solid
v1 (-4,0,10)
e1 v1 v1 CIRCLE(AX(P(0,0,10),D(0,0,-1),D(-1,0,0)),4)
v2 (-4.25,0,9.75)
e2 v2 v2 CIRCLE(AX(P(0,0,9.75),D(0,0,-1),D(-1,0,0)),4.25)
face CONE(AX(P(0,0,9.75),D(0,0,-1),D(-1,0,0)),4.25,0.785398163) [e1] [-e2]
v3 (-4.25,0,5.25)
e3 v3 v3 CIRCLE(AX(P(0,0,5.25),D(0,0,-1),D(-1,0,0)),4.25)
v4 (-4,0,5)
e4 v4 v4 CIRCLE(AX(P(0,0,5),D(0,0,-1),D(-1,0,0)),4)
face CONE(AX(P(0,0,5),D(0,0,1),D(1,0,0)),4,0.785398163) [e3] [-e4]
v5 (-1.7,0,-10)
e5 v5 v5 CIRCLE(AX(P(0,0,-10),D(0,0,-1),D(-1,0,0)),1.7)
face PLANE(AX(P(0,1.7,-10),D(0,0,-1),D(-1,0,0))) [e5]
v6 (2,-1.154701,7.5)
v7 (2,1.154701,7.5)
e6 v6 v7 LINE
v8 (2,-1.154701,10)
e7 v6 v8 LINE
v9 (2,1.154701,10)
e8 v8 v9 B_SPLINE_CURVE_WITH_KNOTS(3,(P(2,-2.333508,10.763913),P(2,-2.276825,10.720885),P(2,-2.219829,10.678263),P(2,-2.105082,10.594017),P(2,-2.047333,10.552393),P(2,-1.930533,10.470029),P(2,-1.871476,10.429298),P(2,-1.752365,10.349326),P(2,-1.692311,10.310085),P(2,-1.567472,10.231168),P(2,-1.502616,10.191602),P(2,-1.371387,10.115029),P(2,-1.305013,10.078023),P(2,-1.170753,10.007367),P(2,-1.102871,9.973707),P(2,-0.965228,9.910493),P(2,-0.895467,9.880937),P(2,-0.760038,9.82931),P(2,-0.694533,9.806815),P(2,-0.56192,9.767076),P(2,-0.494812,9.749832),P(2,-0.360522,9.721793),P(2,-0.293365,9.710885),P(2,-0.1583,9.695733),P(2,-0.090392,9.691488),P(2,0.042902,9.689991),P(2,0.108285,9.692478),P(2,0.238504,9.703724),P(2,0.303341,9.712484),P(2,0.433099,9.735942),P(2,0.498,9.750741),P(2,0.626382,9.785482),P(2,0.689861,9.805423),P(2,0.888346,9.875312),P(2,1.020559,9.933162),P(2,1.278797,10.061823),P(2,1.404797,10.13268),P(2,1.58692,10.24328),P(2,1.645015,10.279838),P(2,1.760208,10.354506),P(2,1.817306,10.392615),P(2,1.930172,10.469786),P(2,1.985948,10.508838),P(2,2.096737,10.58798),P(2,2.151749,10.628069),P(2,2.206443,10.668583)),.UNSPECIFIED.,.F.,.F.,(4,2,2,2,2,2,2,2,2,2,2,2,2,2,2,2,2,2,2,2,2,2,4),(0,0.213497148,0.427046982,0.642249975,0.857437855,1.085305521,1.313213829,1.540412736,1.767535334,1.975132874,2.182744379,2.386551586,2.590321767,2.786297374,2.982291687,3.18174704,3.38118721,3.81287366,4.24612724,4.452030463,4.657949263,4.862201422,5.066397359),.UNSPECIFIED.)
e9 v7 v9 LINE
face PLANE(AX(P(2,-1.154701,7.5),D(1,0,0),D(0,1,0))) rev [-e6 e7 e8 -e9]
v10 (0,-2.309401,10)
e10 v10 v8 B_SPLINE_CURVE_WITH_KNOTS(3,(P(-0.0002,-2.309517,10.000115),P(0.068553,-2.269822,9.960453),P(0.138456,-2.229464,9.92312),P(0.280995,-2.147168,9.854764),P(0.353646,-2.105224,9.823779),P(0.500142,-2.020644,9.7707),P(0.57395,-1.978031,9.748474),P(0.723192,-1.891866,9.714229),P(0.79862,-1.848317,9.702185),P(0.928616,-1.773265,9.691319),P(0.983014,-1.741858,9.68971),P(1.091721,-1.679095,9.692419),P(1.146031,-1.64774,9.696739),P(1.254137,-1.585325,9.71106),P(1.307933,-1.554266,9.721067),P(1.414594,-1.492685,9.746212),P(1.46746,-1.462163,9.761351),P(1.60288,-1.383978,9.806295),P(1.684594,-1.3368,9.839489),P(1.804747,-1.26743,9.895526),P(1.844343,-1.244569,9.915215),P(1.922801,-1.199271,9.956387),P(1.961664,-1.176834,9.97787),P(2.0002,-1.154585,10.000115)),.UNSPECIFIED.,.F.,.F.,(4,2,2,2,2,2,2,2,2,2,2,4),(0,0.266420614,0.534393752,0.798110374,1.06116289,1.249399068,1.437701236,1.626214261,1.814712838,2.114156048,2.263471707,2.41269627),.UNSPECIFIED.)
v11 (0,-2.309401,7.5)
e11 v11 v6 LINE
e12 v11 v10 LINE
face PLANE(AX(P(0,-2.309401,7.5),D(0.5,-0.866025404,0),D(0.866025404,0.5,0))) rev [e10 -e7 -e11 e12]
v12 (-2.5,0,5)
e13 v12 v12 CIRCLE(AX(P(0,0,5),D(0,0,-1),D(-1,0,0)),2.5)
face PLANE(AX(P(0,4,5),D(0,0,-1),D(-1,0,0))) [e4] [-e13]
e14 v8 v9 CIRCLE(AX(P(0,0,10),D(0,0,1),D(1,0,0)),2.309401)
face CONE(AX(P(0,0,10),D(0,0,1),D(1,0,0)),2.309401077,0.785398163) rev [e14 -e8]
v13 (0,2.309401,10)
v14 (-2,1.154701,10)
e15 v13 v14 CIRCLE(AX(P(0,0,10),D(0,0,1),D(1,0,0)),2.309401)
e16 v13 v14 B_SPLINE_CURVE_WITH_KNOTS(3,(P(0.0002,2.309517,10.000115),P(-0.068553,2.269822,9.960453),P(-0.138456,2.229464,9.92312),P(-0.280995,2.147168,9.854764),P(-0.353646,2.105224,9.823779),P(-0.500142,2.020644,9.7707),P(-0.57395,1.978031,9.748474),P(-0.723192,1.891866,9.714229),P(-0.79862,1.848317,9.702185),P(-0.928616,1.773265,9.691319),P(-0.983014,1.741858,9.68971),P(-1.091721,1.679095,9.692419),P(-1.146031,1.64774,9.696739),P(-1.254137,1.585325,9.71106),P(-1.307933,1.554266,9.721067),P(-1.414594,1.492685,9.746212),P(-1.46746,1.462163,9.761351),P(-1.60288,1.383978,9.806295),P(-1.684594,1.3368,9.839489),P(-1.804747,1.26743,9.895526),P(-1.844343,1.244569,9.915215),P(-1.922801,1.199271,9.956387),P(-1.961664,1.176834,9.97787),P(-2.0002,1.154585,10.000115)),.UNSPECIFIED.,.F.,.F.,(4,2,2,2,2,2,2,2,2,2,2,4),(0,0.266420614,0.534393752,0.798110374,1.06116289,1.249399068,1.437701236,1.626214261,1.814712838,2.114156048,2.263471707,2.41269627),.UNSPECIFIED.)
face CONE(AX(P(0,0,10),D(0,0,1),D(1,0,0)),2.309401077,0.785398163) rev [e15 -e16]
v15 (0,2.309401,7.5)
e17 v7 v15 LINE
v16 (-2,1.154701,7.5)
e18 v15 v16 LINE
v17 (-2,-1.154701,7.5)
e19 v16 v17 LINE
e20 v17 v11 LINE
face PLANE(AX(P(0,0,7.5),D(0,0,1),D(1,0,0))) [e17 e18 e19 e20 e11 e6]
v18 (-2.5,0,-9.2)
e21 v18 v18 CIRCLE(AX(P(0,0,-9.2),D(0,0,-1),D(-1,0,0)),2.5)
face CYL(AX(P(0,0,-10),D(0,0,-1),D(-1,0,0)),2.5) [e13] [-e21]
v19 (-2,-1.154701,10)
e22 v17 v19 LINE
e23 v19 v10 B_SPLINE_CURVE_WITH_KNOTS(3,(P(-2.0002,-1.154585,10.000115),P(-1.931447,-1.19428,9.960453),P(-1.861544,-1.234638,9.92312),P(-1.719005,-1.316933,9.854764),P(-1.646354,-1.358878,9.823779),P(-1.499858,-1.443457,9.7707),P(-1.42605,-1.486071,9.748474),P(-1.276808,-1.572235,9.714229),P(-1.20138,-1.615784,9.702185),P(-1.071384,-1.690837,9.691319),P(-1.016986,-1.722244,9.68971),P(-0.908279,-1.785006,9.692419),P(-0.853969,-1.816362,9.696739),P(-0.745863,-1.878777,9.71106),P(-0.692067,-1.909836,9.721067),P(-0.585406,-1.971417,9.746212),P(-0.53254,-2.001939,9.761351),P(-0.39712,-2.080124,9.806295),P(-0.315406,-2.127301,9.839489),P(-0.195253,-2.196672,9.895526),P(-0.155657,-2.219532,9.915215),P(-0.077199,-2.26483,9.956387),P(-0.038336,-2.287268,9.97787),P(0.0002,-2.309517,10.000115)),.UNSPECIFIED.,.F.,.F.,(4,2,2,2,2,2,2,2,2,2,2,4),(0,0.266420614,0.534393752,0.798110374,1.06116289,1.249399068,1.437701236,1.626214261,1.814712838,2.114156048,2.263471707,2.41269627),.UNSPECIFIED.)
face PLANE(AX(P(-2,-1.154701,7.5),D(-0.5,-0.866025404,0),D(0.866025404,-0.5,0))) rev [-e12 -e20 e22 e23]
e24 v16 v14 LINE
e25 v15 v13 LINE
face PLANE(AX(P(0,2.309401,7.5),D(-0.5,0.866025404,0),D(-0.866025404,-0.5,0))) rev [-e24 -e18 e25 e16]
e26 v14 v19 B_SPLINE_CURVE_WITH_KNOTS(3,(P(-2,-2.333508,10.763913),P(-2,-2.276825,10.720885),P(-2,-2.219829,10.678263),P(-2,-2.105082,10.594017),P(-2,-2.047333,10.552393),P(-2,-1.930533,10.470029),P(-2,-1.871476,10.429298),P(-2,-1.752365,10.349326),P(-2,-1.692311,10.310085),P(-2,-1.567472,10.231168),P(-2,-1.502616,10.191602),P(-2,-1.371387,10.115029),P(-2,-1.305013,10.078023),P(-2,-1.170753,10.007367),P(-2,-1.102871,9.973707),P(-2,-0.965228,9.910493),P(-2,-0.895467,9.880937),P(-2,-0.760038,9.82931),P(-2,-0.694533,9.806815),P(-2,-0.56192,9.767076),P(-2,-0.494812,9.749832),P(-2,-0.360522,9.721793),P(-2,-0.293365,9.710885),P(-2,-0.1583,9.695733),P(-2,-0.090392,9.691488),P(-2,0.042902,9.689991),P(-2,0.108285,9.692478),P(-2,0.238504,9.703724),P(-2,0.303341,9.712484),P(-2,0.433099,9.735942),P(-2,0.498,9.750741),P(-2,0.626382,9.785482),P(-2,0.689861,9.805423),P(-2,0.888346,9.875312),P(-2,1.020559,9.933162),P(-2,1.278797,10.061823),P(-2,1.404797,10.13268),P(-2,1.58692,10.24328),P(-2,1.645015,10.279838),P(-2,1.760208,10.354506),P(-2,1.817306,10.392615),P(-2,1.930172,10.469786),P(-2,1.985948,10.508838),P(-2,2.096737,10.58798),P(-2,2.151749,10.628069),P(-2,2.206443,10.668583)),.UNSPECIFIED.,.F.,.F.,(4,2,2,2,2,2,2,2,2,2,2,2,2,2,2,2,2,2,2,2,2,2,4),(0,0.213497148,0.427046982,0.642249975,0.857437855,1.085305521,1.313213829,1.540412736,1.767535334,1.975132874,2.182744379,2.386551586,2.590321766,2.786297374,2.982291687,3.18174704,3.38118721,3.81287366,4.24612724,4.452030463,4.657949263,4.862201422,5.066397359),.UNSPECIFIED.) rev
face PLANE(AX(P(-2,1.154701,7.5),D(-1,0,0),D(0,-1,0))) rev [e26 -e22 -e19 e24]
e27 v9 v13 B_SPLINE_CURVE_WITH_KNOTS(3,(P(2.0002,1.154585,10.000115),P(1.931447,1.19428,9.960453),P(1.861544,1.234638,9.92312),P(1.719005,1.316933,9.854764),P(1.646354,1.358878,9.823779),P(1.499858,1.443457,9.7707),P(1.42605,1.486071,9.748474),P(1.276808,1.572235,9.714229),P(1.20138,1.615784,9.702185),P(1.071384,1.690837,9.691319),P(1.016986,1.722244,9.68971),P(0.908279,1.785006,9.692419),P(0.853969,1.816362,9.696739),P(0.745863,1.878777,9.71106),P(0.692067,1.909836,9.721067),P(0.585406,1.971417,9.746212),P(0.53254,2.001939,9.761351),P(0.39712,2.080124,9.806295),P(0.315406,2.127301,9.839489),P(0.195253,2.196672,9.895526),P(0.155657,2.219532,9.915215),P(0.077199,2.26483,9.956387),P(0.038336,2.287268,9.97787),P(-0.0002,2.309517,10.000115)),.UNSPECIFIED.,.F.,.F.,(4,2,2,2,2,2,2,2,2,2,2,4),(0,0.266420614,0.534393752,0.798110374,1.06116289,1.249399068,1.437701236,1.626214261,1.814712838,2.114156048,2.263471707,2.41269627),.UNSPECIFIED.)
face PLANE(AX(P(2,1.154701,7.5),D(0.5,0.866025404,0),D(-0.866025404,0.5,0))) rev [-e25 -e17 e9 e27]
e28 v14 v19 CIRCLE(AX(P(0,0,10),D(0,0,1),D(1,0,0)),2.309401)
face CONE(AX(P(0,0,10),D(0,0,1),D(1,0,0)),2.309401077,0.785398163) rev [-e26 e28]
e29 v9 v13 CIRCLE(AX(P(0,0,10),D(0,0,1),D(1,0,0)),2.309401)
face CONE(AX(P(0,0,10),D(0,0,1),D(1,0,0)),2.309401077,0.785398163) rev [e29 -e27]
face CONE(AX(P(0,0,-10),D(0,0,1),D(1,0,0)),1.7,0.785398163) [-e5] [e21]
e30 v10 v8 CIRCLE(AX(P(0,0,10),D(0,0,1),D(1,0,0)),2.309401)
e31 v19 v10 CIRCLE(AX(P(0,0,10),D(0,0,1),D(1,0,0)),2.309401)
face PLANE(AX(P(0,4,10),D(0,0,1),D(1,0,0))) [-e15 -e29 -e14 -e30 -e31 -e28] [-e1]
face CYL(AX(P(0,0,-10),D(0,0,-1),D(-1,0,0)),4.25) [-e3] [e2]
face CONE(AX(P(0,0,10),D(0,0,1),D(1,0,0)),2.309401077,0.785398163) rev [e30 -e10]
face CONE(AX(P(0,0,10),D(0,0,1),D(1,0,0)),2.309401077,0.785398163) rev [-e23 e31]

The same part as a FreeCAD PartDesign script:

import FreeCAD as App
import Part
import Sketcher
from FreeCAD import Vector
Q = App.Units.Quantity


def add_polygon(sketch, points):
    """Adds a closed chain of lines whose ends are joined by coincident constraints."""
    first, n = sketch.GeometryCount, len(points)
    for a, b in zip(points, points[1:] + points[:1]):
        sketch.addGeometry(Part.LineSegment(App.Vector(*a, 0), App.Vector(*b, 0)), False)
    for i in range(n):
        sketch.addConstraint(Sketcher.Constraint("Coincident", first + i, 2, first + (i + 1) % n, 1))

doc = App.newDocument("Part")
body = doc.addObject("PartDesign::Body", "Body")

# Sketch on YZ plane
sketch1 = body.newObject("Sketcher::SketchObject", "Sketch")
sketch1.AttachmentSupport = (doc.getObject("YZ_Plane"), [""])
sketch1.MapMode = "FlatFace"
add_polygon(sketch1, [(4.25, 5.25), (4.25, 9.75), (4, 10), (0, 10), (0, -10), (1.7, -10), (2.5, -9.2), (2.5, 5), (4, 5)])  # lines 0-8
sketch1.addConstraint(Sketcher.Constraint("Vertical", 0))
sketch1.addConstraint(Sketcher.Constraint("Horizontal", 2))
sketch1.addConstraint(Sketcher.Constraint("Vertical", 3))
sketch1.addConstraint(Sketcher.Constraint("Horizontal", 4))
sketch1.addConstraint(Sketcher.Constraint("Vertical", 6))
sketch1.addConstraint(Sketcher.Constraint("Horizontal", 7))
sketch1.addConstraint(Sketcher.Constraint("Symmetric", 2, 2, 3, 2, -1, 1))
sketch1.addConstraint(Sketcher.Constraint("Perpendicular", 1, 5))
sketch1.addConstraint(Sketcher.Constraint("Parallel", 5, 8))
sketch1.addConstraint(Sketcher.Constraint("Vertical", 1, 2, 7, 2))
sketch1.addConstraint(Sketcher.Constraint("Equal", 1, 8))
sketch1.addConstraint(Sketcher.Constraint("DistanceX", 2, 2, 2, 1, 4.0))
sketch1.addConstraint(Sketcher.Constraint("DistanceY", 3, 2, 3, 1, 20.0))
sketch1.addConstraint(Sketcher.Constraint("DistanceX", 4, 1, 4, 2, 1.7))
sketch1.addConstraint(Sketcher.Constraint("DistanceX", 7, 1, 7, 2, 1.5))
sketch1.addConstraint(Sketcher.Constraint("DistanceY", 0, 1, 0, 2, 4.5))
sketch1.addConstraint(Sketcher.Constraint("DistanceY", 6, 1, 6, 2, 14.2))
revolution = body.newObject("PartDesign::Revolution", "Revolution")
revolution.Profile = sketch1
revolution.ReferenceAxis = (sketch1, ["V_Axis"])
revolution.Angle = 360

# Sketch on XY plane
sketch2 = body.newObject("Sketcher::SketchObject", "Sketch001")
sketch2.AttachmentSupport = (doc.getObject("XY_Plane"), [""])
sketch2.MapMode = "FlatFace"
sketch2.AttachmentOffset = App.Placement(Vector(0, 0, 7.5), App.Rotation())
add_polygon(sketch2, [(0, 2.3), (-2, 1.2), (-2, -1.2), (0, -2.3), (2, -1.2), (2, 1.2)])  # lines 0-5
sketch2.addConstraint(Sketcher.Constraint("Vertical", 1))
sketch2.addConstraint(Sketcher.Constraint("Vertical", 4))
sketch2.addConstraint(Sketcher.Constraint("Symmetric", 0, 2, 3, 2, -1, 1))
sketch2.addConstraint(Sketcher.Constraint("Symmetric", 2, 2, 5, 2, -1, 1))
sketch2.addConstraint(Sketcher.Constraint("PointOnObject", 2, 2, -2))
sketch2.addConstraint(Sketcher.Constraint("Parallel", 2, 5))
sketch2.addConstraint(Sketcher.Constraint("Horizontal", 1, 2, 3, 2))
sketch2.addConstraint(Sketcher.Constraint("Angle", 0, Q("-150 deg")))
sketch2.addConstraint(Sketcher.Constraint("DistanceX", 0, 2, -1, 1, 2.0))
sketch2.addConstraint(Sketcher.Constraint("DistanceY", 1, 2, 1, 1, 2.309401))
pocket1 = body.newObject("PartDesign::Pocket", "Pocket")
pocket1.Profile = sketch2
pocket1.Length = 2.5
pocket1.Reversed = True

# Sketch on XY plane
sketch3 = body.newObject("Sketcher::SketchObject", "Sketch002")
sketch3.AttachmentSupport = (doc.getObject("XY_Plane"), [""])
sketch3.MapMode = "FlatFace"
sketch3.AttachmentOffset = App.Placement(Vector(0, 0, 10), App.Rotation())
sketch3.addGeometry(Part.Circle(Vector(0, 0, 0), Vector(0, 0, 1), 2.3), False)
sketch3.addConstraint(Sketcher.Constraint("Coincident", 0, 3, -1, 1))
sketch3.addConstraint(Sketcher.Constraint("Diameter", 0, 4.618802))
pocket2 = body.newObject("PartDesign::Pocket", "Pocket001")
pocket2.Profile = sketch3
pocket2.Length = 0.5
pocket2.TaperAngle = -45

doc.recompute()
